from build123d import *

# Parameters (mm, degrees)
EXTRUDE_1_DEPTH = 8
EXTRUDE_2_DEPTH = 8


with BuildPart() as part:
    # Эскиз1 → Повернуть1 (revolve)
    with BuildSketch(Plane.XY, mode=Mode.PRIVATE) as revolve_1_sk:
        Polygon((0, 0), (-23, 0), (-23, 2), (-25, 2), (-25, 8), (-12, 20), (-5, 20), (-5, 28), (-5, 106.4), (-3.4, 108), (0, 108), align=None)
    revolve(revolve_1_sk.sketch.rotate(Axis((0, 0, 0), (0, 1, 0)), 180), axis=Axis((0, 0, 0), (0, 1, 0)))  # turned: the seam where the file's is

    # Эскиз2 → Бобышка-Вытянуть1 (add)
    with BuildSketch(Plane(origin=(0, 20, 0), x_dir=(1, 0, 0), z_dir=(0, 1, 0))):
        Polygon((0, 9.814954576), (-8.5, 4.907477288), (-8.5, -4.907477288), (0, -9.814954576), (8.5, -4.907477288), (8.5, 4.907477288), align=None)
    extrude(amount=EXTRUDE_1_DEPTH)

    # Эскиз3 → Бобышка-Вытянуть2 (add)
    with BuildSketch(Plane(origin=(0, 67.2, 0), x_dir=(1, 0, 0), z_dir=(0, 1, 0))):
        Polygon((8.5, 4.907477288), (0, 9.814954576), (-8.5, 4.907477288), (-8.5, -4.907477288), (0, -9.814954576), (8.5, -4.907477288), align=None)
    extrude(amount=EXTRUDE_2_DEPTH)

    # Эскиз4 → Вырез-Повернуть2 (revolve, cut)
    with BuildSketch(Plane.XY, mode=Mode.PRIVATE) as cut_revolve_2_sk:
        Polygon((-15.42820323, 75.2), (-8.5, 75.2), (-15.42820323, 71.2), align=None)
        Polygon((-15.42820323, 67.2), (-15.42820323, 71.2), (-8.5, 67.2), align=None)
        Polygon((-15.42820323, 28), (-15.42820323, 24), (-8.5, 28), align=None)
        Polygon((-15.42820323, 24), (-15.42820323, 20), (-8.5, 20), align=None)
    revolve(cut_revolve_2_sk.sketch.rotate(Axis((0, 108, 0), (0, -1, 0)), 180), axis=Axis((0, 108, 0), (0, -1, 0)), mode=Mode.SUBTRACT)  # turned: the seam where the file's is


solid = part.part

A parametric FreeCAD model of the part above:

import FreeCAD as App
import Part
import Sketcher
Q = App.Units.Quantity

doc = App.newDocument("Part")
body = doc.addObject("PartDesign::Body", "Body")

# Sketch on XY plane
sketch1 = body.newObject("Sketcher::SketchObject", "Sketch")
sketch1.AttachmentSupport = (doc.getObject("XY_Plane"), [""])
sketch1.MapMode = "FlatFace"
sketch1.addGeometry([
    Part.LineSegment(App.Vector(-23, 0, 0), App.Vector(0, 0, 0)),  # 0
    Part.LineSegment(App.Vector(0, 0, 0), App.Vector(0, 108, 0)),  # 1
    Part.LineSegment(App.Vector(0, 108, 0), App.Vector(-3.4, 108, 0)),  # 2
    Part.LineSegment(App.Vector(-3.4, 108, 0), App.Vector(-5, 106.4, 0)),  # 3
    Part.LineSegment(App.Vector(-5, 106.4, 0), App.Vector(-5, 20, 0)),  # 4
    Part.LineSegment(App.Vector(-5, 20, 0), App.Vector(-12, 20, 0)),  # 5
    Part.LineSegment(App.Vector(-12, 20, 0), App.Vector(-25, 8, 0)),  # 6
    Part.LineSegment(App.Vector(-25, 8, 0), App.Vector(-25, 2, 0)),  # 7
    Part.LineSegment(App.Vector(-25, 2, 0), App.Vector(-23, 2, 0)),  # 8
    Part.LineSegment(App.Vector(-23, 2, 0), App.Vector(-23, 0, 0)),  # 9
], False)
sketch1.addConstraint([
    Sketcher.Constraint("Coincident", 0, 2, 1, 1),
    Sketcher.Constraint("Coincident", 1, 2, 2, 1),
    Sketcher.Constraint("Coincident", 2, 2, 3, 1),
    Sketcher.Constraint("Coincident", 3, 2, 4, 1),
    Sketcher.Constraint("Coincident", 4, 2, 5, 1),
    Sketcher.Constraint("Coincident", 5, 2, 6, 1),
    Sketcher.Constraint("Coincident", 6, 2, 7, 1),
    Sketcher.Constraint("Coincident", 7, 2, 8, 1),
    Sketcher.Constraint("Coincident", 8, 2, 9, 1),
    Sketcher.Constraint("Coincident", 9, 2, 0, 1),
    Sketcher.Constraint("Horizontal", 0),
    Sketcher.Constraint("Vertical", 1),
    Sketcher.Constraint("Horizontal", 2),
    Sketcher.Constraint("Vertical", 4),
    Sketcher.Constraint("Horizontal", 5),
    Sketcher.Constraint("Vertical", 7),
    Sketcher.Constraint("Horizontal", 8),
    Sketcher.Constraint("Vertical", 9),
    Sketcher.Constraint("Coincident", 0, 2, -1, 1),
    Sketcher.Constraint("Equal", 8, 9),
    Sketcher.Constraint("DistanceX", 0, 1, 0, 2, 23.0),
    Sketcher.Constraint("DistanceX", 5, 2, 5, 1, 7.0),
    Sketcher.Constraint("DistanceX", 8, 1, 8, 2, 2.0),
    Sketcher.Constraint("DistanceY", 1, 1, 1, 2, 108.0),
    Sketcher.Constraint("DistanceY", 7, 2, 7, 1, 6.0),
    Sketcher.Constraint("Angle", 3, Q("-135 deg")),
    Sketcher.Constraint("DistanceX", 2, 2, 2, 1, 3.4),
    Sketcher.Constraint("DistanceY", 4, 2, 4, 1, 86.4),
    Sketcher.Constraint("DistanceX", 3, 2, -1, 1, 5.0),
])
revolution = body.newObject("PartDesign::Revolution", "Revolution")
revolution.Profile = sketch1
revolution.ReferenceAxis = (sketch1, ["V_Axis"])
revolution.Angle = 360

# Sketch on XZ plane
sketch2 = body.newObject("Sketcher::SketchObject", "Sketch001")
sketch2.AttachmentSupport = (doc.getObject("XZ_Plane"), [""])
sketch2.MapMode = "FlatFace"
sketch2.AttachmentOffset = App.Placement(App.Vector(0, 0, -20), App.Rotation())
sketch2.addGeometry([
    Part.LineSegment(App.Vector(0, -9.814955, 0), App.Vector(-8.5, -4.907477, 0)),  # 0
    Part.LineSegment(App.Vector(-8.5, -4.907477, 0), App.Vector(-8.5, 4.907477, 0)),  # 1
    Part.LineSegment(App.Vector(-8.5, 4.907477, 0), App.Vector(0, 9.814955, 0)),  # 2
    Part.LineSegment(App.Vector(0, 9.814955, 0), App.Vector(8.5, 4.907477, 0)),  # 3
    Part.LineSegment(App.Vector(8.5, 4.907477, 0), App.Vector(8.5, -4.907477, 0)),  # 4
    Part.LineSegment(App.Vector(8.5, -4.907477, 0), App.Vector(0, -9.814955, 0)),  # 5
], False)
sketch2.addConstraint([
    Sketcher.Constraint("Coincident", 0, 2, 1, 1),
    Sketcher.Constraint("Coincident", 1, 2, 2, 1),
    Sketcher.Constraint("Coincident", 2, 2, 3, 1),
    Sketcher.Constraint("Coincident", 3, 2, 4, 1),
    Sketcher.Constraint("Coincident", 4, 2, 5, 1),
    Sketcher.Constraint("Coincident", 5, 2, 0, 1),
    Sketcher.Constraint("Vertical", 1),
    Sketcher.Constraint("Vertical", 4),
    Sketcher.Constraint("Symmetric", 0, 2, 3, 2, -1, 1),
    Sketcher.Constraint("Symmetric", 2, 2, 5, 2, -1, 1),
    Sketcher.Constraint("PointOnObject", 2, 2, -2),
    Sketcher.Constraint("Parallel", 2, 5),
    Sketcher.Constraint("Horizontal", 1, 2, 3, 2),
    Sketcher.Constraint("Angle", 0, Q("150 deg")),
    Sketcher.Constraint("DistanceX", 1, 2, 3, 2, 17.0),
    Sketcher.Constraint("DistanceY", 1, 1, 1, 2, 9.814955),
])
pad1 = body.newObject("PartDesign::Pad", "Pad")
pad1.Profile = sketch2
pad1.Length = 8
pad1.Reversed = True

# Sketch on XZ plane
sketch3 = body.newObject("Sketcher::SketchObject", "Sketch002")
sketch3.AttachmentSupport = (doc.getObject("XZ_Plane"), [""])
sketch3.MapMode = "FlatFace"
sketch3.AttachmentOffset = App.Placement(App.Vector(0, 0, -67.2), App.Rotation())
sketch3.addGeometry([
    Part.LineSegment(App.Vector(8.5, -4.907477, 0), App.Vector(0, -9.814955, 0)),  # 0
    Part.LineSegment(App.Vector(0, -9.814955, 0), App.Vector(-8.5, -4.907477, 0)),  # 1
    Part.LineSegment(App.Vector(-8.5, -4.907477, 0), App.Vector(-8.5, 4.907477, 0)),  # 2
    Part.LineSegment(App.Vector(-8.5, 4.907477, 0), App.Vector(0, 9.814955, 0)),  # 3
    Part.LineSegment(App.Vector(0, 9.814955, 0), App.Vector(8.5, 4.907477, 0)),  # 4
    Part.LineSegment(App.Vector(8.5, 4.907477, 0), App.Vector(8.5, -4.907477, 0)),  # 5
], False)
sketch3.addConstraint([
    Sketcher.Constraint("Coincident", 0, 2, 1, 1),
    Sketcher.Constraint("Coincident", 1, 2, 2, 1),
    Sketcher.Constraint("Coincident", 2, 2, 3, 1),
    Sketcher.Constraint("Coincident", 3, 2, 4, 1),
    Sketcher.Constraint("Coincident", 4, 2, 5, 1),
    Sketcher.Constraint("Coincident", 5, 2, 0, 1),
    Sketcher.Constraint("Vertical", 2),
    Sketcher.Constraint("Vertical", 5),
    Sketcher.Constraint("Symmetric", 0, 2, 3, 2, -1, 1),
    Sketcher.Constraint("Symmetric", 1, 2, 4, 2, -1, 1),
    Sketcher.Constraint("PointOnObject", 0, 2, -2),
    Sketcher.Constraint("Parallel", 0, 3),
    Sketcher.Constraint("Horizontal", 2, 2, 4, 2),
    Sketcher.Constraint("Angle", 0, Q("-150 deg")),
    Sketcher.Constraint("DistanceX", 2, 2, 4, 2, 17.0),
    Sketcher.Constraint("DistanceY", 2, 1, 2, 2, 9.814955),
])
pad2 = body.newObject("PartDesign::Pad", "Pad001")
pad2.Profile = sketch3
pad2.Length = 8
pad2.Reversed = True

# Sketch on XY plane
sketch4 = body.newObject("Sketcher::SketchObject", "Sketch003")
sketch4.AttachmentSupport = (doc.getObject("XY_Plane"), [""])
sketch4.MapMode = "FlatFace"
sketch4.addGeometry([
    Part.LineSegment(App.Vector(-8.5, 75.2, 0), App.Vector(-15.428203, 75.2, 0)),  # 0
    Part.LineSegment(App.Vector(-15.428203, 75.2, 0), App.Vector(-15.428203, 71.2, 0)),  # 1
    Part.LineSegment(App.Vector(-15.428203, 71.2, 0), App.Vector(-8.5, 75.2, 0)),  # 2
    Part.LineSegment(App.Vector(-15.428203, 71.2, 0), App.Vector(-15.428203, 67.2, 0)),  # 3
    Part.LineSegment(App.Vector(-15.428203, 67.2, 0), App.Vector(-8.5, 67.2, 0)),  # 4
    Part.LineSegment(App.Vector(-8.5, 67.2, 0), App.Vector(-15.428203, 71.2, 0)),  # 5
    Part.LineSegment(App.Vector(-15.428203, 28, 0), App.Vector(-15.428203, 24, 0)),  # 6
    Part.LineSegment(App.Vector(-15.428203, 24, 0), App.Vector(-8.5, 28, 0)),  # 7
    Part.LineSegment(App.Vector(-8.5, 28, 0), App.Vector(-15.428203, 28, 0)),  # 8
    Part.LineSegment(App.Vector(-15.428203, 24, 0), App.Vector(-15.428203, 20, 0)),  # 9
    Part.LineSegment(App.Vector(-15.428203, 20, 0), App.Vector(-8.5, 20, 0)),  # 10
    Part.LineSegment(App.Vector(-8.5, 20, 0), App.Vector(-15.428203, 24, 0)),  # 11
], False)
sketch4.addConstraint([
    Sketcher.Constraint("Coincident", 0, 2, 1, 1),
    Sketcher.Constraint("Coincident", 1, 2, 2, 1),
    Sketcher.Constraint("Coincident", 2, 2, 0, 1),
    Sketcher.Constraint("Coincident", 3, 2, 4, 1),
    Sketcher.Constraint("Coincident", 4, 2, 5, 1),
    Sketcher.Constraint("Coincident", 5, 2, 3, 1),
    Sketcher.Constraint("Coincident", 6, 2, 7, 1),
    Sketcher.Constraint("Coincident", 7, 2, 8, 1),
    Sketcher.Constraint("Coincident", 8, 2, 6, 1),
    Sketcher.Constraint("Coincident", 9, 2, 10, 1),
    Sketcher.Constraint("Coincident", 10, 2, 11, 1),
    Sketcher.Constraint("Coincident", 11, 2, 9, 1),
    Sketcher.Constraint("Horizontal", 0),
    Sketcher.Constraint("Vertical", 1),
    Sketcher.Constraint("Vertical", 3),
    Sketcher.Constraint("Horizontal", 4),
    Sketcher.Constraint("Vertical", 6),
    Sketcher.Constraint("Horizontal", 8),
    Sketcher.Constraint("Vertical", 9),
    Sketcher.Constraint("Horizontal", 10),
    Sketcher.Constraint("Coincident", 5, 2, 1, 2),
    Sketcher.Constraint("Coincident", 11, 2, 6, 2),
    Sketcher.Constraint("Parallel", 2, 7),
    Sketcher.Constraint("Parallel", 5, 11),
    Sketcher.Constraint("Vertical", 2, 2, 4, 2),
    Sketcher.Constraint("Vertical", 5, 2, 6, 2),
    Sketcher.Constraint("Vertical", 4, 2, 7, 2),
    Sketcher.Constraint("Vertical", 7, 2, 10, 2),
    Sketcher.Constraint("Equal", 1, 3),
    Sketcher.Constraint("DistanceY", 1, 2, 1, 1, 4.0),
    Sketcher.Constraint("Angle", 2, Q("30 deg")),
    Sketcher.Constraint("DistanceY", -1, 1, 6, 2, 24.0),
    Sketcher.Constraint("DistanceY", -1, 1, 0, 2, 75.2),
    Sketcher.Constraint("DistanceX", 2, 2, -1, 1, 8.5),
])
groove = body.newObject("PartDesign::Groove", "Groove")
groove.Profile = sketch4
groove.ReferenceAxis = (sketch4, ["V_Axis"])
groove.Angle = 360

doc.recompute()
